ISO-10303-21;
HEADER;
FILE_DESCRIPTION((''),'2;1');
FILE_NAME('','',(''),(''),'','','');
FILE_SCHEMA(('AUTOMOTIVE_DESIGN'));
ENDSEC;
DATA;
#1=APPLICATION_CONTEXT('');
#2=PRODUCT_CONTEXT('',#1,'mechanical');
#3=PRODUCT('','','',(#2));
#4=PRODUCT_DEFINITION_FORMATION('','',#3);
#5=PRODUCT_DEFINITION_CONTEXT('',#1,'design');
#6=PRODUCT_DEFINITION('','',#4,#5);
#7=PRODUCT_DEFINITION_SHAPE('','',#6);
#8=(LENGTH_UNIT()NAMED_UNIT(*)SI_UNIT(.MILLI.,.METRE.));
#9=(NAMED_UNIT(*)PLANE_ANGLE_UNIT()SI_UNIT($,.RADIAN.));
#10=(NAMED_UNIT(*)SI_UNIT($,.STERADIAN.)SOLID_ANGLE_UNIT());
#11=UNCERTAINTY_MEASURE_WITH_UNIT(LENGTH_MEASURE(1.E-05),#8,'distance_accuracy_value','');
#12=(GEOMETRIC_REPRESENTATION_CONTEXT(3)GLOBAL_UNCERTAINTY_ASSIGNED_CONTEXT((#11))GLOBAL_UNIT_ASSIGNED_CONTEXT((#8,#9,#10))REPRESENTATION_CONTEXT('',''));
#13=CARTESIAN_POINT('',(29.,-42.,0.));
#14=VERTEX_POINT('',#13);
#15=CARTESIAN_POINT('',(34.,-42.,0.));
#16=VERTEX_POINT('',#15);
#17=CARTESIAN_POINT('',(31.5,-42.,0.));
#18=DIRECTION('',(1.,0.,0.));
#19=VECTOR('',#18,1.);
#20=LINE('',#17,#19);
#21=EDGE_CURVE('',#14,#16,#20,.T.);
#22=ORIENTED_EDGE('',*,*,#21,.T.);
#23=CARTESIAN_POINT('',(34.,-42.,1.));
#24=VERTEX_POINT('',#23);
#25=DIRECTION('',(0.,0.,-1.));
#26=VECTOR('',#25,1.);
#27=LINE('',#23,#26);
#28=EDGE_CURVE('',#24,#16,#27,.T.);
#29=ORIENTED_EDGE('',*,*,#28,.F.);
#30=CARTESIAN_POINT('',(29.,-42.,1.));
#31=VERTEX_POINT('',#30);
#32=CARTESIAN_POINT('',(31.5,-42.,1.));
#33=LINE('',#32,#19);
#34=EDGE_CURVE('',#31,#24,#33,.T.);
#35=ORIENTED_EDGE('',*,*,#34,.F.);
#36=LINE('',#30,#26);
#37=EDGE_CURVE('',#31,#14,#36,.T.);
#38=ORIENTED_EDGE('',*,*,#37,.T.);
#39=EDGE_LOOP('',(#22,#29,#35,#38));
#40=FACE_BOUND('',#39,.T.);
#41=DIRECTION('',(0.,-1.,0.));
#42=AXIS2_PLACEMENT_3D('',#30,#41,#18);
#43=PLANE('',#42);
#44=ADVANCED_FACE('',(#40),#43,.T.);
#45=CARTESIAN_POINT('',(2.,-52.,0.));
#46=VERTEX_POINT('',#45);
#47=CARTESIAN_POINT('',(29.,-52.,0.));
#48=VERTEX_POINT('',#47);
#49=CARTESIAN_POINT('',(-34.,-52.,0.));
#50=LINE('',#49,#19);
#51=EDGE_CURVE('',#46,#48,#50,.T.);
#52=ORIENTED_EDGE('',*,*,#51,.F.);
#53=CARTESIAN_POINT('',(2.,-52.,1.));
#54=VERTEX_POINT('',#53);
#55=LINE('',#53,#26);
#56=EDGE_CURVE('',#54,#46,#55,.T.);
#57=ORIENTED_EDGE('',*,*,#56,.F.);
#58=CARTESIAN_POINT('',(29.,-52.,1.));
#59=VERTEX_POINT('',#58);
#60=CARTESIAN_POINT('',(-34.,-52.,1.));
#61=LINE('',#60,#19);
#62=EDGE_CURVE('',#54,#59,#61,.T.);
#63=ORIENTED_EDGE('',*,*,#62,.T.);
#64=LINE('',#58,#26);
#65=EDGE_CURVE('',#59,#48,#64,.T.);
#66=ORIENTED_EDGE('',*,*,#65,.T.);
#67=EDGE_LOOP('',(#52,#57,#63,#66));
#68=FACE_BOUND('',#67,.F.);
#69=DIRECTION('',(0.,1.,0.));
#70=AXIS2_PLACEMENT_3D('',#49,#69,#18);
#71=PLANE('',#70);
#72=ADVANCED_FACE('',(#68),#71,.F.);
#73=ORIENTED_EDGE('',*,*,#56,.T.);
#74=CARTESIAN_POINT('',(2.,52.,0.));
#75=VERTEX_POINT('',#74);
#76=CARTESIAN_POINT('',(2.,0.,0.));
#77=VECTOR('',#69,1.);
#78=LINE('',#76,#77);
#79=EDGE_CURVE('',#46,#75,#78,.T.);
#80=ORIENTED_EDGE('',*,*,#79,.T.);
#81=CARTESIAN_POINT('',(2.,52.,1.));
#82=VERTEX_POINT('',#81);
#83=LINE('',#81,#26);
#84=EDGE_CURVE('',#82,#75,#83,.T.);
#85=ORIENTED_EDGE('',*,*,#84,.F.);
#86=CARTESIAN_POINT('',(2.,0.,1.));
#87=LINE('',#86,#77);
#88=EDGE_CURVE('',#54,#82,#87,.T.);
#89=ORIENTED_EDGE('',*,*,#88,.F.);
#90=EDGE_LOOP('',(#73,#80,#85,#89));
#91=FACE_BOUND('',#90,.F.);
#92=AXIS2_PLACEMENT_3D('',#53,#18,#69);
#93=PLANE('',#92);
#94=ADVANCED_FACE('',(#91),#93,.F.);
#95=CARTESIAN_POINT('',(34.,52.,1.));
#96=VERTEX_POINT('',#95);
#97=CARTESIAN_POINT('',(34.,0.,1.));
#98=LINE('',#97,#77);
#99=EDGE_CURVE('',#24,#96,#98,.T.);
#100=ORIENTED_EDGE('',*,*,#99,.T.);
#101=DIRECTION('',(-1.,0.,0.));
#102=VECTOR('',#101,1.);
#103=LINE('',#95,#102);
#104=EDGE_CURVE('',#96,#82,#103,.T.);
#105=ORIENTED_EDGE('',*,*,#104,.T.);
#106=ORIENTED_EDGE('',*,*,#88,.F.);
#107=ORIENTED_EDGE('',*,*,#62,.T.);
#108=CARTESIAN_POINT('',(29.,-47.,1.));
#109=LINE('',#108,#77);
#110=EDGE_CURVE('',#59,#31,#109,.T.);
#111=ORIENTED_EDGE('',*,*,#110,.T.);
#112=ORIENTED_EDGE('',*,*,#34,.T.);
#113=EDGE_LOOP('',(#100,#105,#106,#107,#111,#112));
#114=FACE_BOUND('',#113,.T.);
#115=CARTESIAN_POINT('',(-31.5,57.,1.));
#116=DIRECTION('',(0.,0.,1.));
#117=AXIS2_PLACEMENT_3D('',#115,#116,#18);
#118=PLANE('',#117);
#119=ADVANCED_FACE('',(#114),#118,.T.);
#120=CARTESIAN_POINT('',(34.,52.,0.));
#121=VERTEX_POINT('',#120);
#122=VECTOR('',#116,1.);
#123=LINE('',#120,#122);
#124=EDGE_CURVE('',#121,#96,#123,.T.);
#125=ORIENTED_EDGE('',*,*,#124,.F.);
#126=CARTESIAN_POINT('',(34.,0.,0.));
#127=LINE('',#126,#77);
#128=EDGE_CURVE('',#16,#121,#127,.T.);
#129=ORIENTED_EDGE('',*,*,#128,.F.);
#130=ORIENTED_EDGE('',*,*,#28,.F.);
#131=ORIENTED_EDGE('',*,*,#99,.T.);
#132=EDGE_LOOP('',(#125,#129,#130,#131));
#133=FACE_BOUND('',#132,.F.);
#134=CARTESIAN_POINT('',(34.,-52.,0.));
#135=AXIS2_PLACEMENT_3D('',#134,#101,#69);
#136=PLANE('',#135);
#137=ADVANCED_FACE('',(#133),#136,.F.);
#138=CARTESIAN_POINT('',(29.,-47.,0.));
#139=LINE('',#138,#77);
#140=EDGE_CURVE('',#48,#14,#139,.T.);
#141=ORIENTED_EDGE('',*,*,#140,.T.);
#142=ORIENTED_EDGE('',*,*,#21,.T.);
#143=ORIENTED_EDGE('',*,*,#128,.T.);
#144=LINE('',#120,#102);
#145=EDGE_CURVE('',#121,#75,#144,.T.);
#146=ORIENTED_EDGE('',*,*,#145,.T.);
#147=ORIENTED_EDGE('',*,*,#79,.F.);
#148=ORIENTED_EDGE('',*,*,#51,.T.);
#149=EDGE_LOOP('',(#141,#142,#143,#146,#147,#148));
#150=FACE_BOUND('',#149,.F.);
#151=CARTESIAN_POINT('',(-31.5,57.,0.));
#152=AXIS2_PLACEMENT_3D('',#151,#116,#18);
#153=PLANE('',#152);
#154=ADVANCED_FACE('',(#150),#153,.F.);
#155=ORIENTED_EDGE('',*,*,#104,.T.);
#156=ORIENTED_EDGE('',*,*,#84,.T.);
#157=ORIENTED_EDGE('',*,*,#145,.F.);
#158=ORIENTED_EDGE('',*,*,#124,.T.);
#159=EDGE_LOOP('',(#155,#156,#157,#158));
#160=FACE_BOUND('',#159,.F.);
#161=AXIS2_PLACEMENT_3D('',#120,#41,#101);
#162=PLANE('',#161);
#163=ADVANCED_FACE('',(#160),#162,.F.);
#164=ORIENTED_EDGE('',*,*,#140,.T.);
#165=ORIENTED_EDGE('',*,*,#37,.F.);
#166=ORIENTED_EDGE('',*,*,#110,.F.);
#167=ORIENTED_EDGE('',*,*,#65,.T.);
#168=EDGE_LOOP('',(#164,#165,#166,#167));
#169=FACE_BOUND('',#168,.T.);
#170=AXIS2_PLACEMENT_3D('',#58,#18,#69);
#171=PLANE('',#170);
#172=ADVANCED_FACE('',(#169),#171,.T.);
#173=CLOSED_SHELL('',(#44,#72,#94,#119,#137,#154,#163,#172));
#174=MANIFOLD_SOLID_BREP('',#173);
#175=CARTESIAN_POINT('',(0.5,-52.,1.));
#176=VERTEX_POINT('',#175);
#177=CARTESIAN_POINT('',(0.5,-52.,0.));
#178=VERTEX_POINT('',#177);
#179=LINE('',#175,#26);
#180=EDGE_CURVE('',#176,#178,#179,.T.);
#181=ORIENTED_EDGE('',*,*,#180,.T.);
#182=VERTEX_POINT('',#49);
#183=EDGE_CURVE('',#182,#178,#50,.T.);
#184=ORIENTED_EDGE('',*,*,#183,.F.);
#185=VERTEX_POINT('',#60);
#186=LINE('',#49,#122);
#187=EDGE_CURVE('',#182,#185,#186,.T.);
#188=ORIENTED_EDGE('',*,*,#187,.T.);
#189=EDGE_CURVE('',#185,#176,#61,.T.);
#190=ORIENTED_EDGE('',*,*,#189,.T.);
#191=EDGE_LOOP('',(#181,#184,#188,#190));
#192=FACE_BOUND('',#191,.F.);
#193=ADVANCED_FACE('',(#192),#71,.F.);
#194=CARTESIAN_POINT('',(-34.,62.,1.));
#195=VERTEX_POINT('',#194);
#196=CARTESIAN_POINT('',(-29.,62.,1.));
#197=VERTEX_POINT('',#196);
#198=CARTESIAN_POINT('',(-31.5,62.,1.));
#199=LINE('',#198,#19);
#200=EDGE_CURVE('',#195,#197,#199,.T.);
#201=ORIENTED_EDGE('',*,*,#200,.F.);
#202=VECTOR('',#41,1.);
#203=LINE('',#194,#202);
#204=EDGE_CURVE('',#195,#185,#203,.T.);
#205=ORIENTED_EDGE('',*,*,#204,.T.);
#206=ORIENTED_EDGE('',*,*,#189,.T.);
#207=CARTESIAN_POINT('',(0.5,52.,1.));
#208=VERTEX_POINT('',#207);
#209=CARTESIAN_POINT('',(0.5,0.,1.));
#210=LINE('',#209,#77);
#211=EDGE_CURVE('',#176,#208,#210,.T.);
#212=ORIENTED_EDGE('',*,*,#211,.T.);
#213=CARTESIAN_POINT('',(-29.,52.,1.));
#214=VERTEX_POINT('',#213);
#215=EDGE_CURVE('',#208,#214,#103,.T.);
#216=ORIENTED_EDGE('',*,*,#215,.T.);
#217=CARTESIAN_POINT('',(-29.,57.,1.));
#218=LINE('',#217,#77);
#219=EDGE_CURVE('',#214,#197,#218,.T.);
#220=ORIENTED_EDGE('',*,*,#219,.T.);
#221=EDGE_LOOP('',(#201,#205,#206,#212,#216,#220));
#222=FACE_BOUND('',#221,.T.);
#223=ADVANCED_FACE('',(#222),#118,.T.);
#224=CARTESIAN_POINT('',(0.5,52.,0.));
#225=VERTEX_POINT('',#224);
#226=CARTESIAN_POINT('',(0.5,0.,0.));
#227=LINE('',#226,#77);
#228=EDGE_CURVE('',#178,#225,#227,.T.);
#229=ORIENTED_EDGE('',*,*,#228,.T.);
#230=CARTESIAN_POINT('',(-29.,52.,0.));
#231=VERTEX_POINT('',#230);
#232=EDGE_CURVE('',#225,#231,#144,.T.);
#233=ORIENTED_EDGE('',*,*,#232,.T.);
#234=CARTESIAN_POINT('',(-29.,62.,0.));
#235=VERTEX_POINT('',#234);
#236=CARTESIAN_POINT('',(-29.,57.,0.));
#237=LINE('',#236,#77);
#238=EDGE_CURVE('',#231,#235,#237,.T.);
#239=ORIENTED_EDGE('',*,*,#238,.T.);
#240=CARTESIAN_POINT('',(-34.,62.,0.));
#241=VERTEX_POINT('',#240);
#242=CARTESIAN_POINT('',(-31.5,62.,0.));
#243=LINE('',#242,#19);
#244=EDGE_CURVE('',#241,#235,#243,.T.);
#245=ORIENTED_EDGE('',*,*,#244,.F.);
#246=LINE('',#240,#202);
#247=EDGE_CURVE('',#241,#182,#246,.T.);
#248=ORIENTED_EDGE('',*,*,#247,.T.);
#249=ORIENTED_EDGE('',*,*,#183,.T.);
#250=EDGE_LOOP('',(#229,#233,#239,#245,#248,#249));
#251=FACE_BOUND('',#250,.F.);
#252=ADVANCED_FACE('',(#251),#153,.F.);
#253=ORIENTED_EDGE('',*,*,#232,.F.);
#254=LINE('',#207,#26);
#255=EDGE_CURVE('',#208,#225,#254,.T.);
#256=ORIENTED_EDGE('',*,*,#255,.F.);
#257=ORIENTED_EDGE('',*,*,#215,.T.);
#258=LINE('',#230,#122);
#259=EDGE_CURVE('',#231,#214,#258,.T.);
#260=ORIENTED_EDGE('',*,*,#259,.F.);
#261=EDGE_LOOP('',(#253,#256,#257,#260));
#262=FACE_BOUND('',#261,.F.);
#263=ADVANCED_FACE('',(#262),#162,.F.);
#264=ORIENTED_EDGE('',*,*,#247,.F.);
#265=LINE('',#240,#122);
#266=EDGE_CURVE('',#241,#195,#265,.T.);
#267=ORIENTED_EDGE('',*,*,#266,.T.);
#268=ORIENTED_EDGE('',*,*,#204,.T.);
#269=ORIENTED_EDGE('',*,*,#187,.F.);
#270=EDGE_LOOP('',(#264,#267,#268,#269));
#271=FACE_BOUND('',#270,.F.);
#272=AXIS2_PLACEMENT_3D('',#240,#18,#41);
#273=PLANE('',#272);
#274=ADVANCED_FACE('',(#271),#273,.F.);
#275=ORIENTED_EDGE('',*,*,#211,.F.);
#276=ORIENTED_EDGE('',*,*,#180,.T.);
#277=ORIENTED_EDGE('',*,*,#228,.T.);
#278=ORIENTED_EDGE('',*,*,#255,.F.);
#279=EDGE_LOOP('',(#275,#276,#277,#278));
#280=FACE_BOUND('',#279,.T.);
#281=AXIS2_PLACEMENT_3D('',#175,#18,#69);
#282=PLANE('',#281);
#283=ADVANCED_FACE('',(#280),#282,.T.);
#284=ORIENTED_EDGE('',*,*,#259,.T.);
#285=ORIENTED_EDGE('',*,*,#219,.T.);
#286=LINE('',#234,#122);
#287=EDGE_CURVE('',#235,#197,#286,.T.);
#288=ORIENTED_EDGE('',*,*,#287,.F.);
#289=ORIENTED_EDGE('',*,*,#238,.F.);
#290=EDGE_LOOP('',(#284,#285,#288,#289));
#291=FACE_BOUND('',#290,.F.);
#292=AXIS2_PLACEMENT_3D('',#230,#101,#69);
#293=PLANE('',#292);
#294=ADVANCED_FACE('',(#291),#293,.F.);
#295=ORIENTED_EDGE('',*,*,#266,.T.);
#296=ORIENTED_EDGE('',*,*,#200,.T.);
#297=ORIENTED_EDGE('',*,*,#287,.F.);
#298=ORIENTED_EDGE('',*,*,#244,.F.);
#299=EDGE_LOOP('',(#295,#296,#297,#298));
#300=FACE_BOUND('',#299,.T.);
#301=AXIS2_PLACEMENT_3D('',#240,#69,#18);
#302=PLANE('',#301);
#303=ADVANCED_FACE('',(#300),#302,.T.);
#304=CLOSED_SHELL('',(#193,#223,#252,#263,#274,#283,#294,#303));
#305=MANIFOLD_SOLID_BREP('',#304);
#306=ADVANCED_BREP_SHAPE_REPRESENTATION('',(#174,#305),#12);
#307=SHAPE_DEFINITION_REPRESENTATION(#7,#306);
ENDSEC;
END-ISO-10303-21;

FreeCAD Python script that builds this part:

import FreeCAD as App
import Part
import Sketcher
from FreeCAD import Vector
Q = App.Units.Quantity

doc = App.newDocument("Part")
body = doc.addObject("PartDesign::Body", "Body")
body.AllowCompound = True

# Sketch on XY plane
sketch1 = body.newObject("Sketcher::SketchObject", "Sketch")
sketch1.AttachmentSupport = (doc.getObject("XY_Plane"), [""])
sketch1.MapMode = "FlatFace"
sketch1.addGeometry([
    Part.LineSegment(Vector(-34, 62, 0), Vector(-34, -52, 0)),  # 0
    Part.LineSegment(Vector(-34, -52, 0), Vector(34, -52, 0)),  # 1
    Part.LineSegment(Vector(34, -52, 0), Vector(34, 52, 0)),  # 2
    Part.LineSegment(Vector(34, 52, 0), Vector(-29, 52, 0)),  # 3
    Part.LineSegment(Vector(-29, 52, 0), Vector(-29, 62, 0)),  # 4
    Part.LineSegment(Vector(-29, 62, 0), Vector(-34, 62, 0)),  # 5
], False)
sketch1.addConstraint([
    Sketcher.Constraint("Coincident", 0, 2, 1, 1),
    Sketcher.Constraint("Coincident", 1, 2, 2, 1),
    Sketcher.Constraint("Coincident", 2, 2, 3, 1),
    Sketcher.Constraint("Coincident", 3, 2, 4, 1),
    Sketcher.Constraint("Coincident", 4, 2, 5, 1),
    Sketcher.Constraint("Coincident", 5, 2, 0, 1),
    Sketcher.Constraint("Vertical", 0),
    Sketcher.Constraint("Horizontal", 1),
    Sketcher.Constraint("Vertical", 2),
    Sketcher.Constraint("Horizontal", 3),
    Sketcher.Constraint("Vertical", 4),
    Sketcher.Constraint("Horizontal", 5),
    Sketcher.Constraint("Symmetric", 0, 2, 2, 2, -1, 1),
    Sketcher.Constraint("DistanceX", 1, 1, 1, 2, Q("68 mm")),
    Sketcher.Constraint("DistanceX", 3, 2, 3, 1, Q("63 mm")),
    Sketcher.Constraint("DistanceY", 0, 2, 0, 1, Q("114 mm")),
    Sketcher.Constraint("DistanceY", 2, 1, 2, 2, Q("104 mm")),
])
pad1 = body.newObject("PartDesign::Pad", "Pad")
pad1.Profile = sketch1
pad1.Length = 1

# Sketch on XY plane
sketch2 = body.newObject("Sketcher::SketchObject", "Sketch001")
sketch2.AttachmentSupport = (doc.getObject("XY_Plane"), [""])
sketch2.MapMode = "FlatFace"
sketch2.AttachmentOffset = App.Placement(Vector(0, 0, 1), App.Rotation())
sketch2.addGeometry([
    Part.LineSegment(Vector(0.5, 52, 0), Vector(0.5, -52, 0)),
    Part.LineSegment(Vector(0.5, -52, 0), Vector(2, -52, 0)),
    Part.LineSegment(Vector(2, -52, 0), Vector(2, 52, 0)),
    Part.LineSegment(Vector(2, 52, 0), Vector(0.5, 52, 0)),
], False)
sketch2.addConstraint([
    Sketcher.Constraint("Coincident", 0, 2, 1, 1),
    Sketcher.Constraint("Coincident", 1, 2, 2, 1),
    Sketcher.Constraint("Coincident", 2, 2, 3, 1),
    Sketcher.Constraint("Coincident", 3, 2, 0, 1),
    Sketcher.Constraint("Vertical", 0),
    Sketcher.Constraint("Horizontal", 1),
    Sketcher.Constraint("Vertical", 2),
    Sketcher.Constraint("Horizontal", 3),
    Sketcher.Constraint("DistanceY", 0, 2, 0, 1, Q("104 mm")),
    Sketcher.Constraint("DistanceX", 1, 1, 1, 2, Q("1.5 mm")),
    Sketcher.Constraint("DistanceY", 0, 2, -1, 1, Q("52 mm")),
    Sketcher.Constraint("DistanceX", -1, 1, 1, 2, Q("2 mm")),
])
pocket1 = body.newObject("PartDesign::Pocket", "Pocket")
pocket1.Profile = sketch2
pocket1.Length = 1

# Sketch on XY plane
sketch3 = body.newObject("Sketcher::SketchObject", "Sketch002")
sketch3.AttachmentSupport = (doc.getObject("XY_Plane"), [""])
sketch3.MapMode = "FlatFace"
sketch3.AttachmentOffset = App.Placement(Vector(0, 0, 1), App.Rotation())
sketch3.addGeometry([
    Part.LineSegment(Vector(29, -42, 0), Vector(29, -52, 0)),
    Part.LineSegment(Vector(29, -52, 0), Vector(34, -52, 0)),
    Part.LineSegment(Vector(34, -52, 0), Vector(34, -42, 0)),
    Part.LineSegment(Vector(34, -42, 0), Vector(29, -42, 0)),
], False)
sketch3.addConstraint([
    Sketcher.Constraint("Coincident", 0, 2, 1, 1),
    Sketcher.Constraint("Coincident", 1, 2, 2, 1),
    Sketcher.Constraint("Coincident", 2, 2, 3, 1),
    Sketcher.Constraint("Coincident", 3, 2, 0, 1),
    Sketcher.Constraint("Vertical", 0),
    Sketcher.Constraint("Horizontal", 1),
    Sketcher.Constraint("Vertical", 2),
    Sketcher.Constraint("Horizontal", 3),
    Sketcher.Constraint("DistanceX", 1, 1, 1, 2, Q("5 mm")),
    Sketcher.Constraint("DistanceY", 0, 2, 0, 1, Q("10 mm")),
    Sketcher.Constraint("DistanceX", -1, 1, 0, 2, Q("29 mm")),
    Sketcher.Constraint("DistanceY", 0, 2, -1, 1, Q("52 mm")),
])
pocket2 = body.newObject("PartDesign::Pocket", "Pocket001")
pocket2.Profile = sketch3
pocket2.Length = 1

doc.recompute()
